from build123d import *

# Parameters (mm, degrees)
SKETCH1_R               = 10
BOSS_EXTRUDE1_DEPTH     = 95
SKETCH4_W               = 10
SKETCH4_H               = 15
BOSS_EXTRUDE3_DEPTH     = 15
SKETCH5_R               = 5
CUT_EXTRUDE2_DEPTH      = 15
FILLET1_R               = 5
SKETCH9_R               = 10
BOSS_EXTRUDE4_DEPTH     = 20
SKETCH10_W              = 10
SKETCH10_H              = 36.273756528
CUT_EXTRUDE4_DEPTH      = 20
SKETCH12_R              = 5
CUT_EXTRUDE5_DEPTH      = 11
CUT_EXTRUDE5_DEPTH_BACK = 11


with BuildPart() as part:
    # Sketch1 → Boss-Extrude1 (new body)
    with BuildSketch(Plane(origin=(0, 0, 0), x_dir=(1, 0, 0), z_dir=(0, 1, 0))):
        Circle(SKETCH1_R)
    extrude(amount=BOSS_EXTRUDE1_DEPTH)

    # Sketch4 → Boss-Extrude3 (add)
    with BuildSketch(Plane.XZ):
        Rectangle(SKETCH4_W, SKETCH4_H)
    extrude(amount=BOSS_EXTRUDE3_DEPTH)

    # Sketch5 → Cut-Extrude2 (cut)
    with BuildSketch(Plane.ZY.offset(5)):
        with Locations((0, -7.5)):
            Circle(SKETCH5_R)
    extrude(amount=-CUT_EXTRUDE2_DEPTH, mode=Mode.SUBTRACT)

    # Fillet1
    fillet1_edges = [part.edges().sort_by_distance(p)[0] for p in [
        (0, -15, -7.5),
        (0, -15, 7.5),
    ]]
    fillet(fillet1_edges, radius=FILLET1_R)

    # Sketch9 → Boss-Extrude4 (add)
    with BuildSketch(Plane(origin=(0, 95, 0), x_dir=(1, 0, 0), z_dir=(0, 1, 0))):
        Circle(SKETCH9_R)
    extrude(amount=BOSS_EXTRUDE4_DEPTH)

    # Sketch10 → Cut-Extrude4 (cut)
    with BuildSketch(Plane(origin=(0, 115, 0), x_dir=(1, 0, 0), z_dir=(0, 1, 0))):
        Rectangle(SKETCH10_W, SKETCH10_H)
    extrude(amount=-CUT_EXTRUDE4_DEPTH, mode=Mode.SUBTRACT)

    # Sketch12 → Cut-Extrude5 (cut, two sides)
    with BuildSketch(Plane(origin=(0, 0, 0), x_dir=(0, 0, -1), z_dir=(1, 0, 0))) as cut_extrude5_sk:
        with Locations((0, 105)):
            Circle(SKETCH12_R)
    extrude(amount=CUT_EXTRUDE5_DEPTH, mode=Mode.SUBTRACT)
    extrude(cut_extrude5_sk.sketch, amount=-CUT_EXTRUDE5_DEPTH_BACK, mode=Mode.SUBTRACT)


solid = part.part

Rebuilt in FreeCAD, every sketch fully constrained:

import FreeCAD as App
import Part
import Sketcher

V = App.Vector
Q = App.Units.Quantity


def edges_at(feature, points):
    """Names of the edges that pass closest to the given points."""
    edges = feature.Shape.Edges
    near = lambda p: min(range(len(edges)), key=lambda i: edges[i].distToShape(Part.Vertex(*p))[0])
    return sorted({f"Edge{near(p) + 1}" for p in points})


def add_polygon(sketch, points):
    """Adds a closed chain of lines whose ends are joined by coincident constraints."""
    first, n = sketch.GeometryCount, len(points)
    for a, b in zip(points, points[1:] + points[:1]):
        sketch.addGeometry(Part.LineSegment(App.Vector(*a, 0), App.Vector(*b, 0)), False)
    for i in range(n):
        sketch.addConstraint(Sketcher.Constraint("Coincident", first + i, 2, first + (i + 1) % n, 1))

doc = App.newDocument("Part")
body = doc.addObject("PartDesign::Body", "Body")

# Sketch on XZ plane
sketch1 = doc.addObject("Sketcher::SketchObject", "Sketch")
body.addObject(sketch1)
sketch1.AttachmentSupport = (doc.XZ_Plane, [""])
sketch1.MapMode = "FlatFace"
sketch1.addGeometry(Part.Circle(V(0, 0, 0), V(0, 0, 1), 10), False)
sketch1.addConstraint(Sketcher.Constraint("Coincident", 0, 3, -1, 1))
sketch1.addConstraint(Sketcher.Constraint("Diameter", 0, Q("20 mm")))
pad1 = doc.addObject("PartDesign::Pad", "Pad")
body.addObject(pad1)
pad1.Profile = sketch1
pad1.Length = 95
pad1.Reversed = True

# Sketch on XZ plane
sketch2 = doc.addObject("Sketcher::SketchObject", "Sketch001")
body.addObject(sketch2)
sketch2.AttachmentSupport = (doc.XZ_Plane, [""])
sketch2.MapMode = "FlatFace"
add_polygon(sketch2, [(-5, 8), (-5, -8), (5, -8), (5, 8)])  # lines 0-3
sketch2.addConstraint(Sketcher.Constraint("Vertical", 0))
sketch2.addConstraint(Sketcher.Constraint("Horizontal", 1))
sketch2.addConstraint(Sketcher.Constraint("Vertical", 2))
sketch2.addConstraint(Sketcher.Constraint("Horizontal", 3))
sketch2.addConstraint(Sketcher.Constraint("Symmetric", 0, 2, 2, 2, -1, 1))
sketch2.addConstraint(Sketcher.Constraint("DistanceX", 1, 1, 1, 2, Q("10 mm")))
sketch2.addConstraint(Sketcher.Constraint("DistanceY", 0, 2, 0, 1, Q("15 mm")))
pad2 = doc.addObject("PartDesign::Pad", "Pad001")
body.addObject(pad2)
pad2.Profile = sketch2
pad2.Length = 15

# Sketch on YZ plane
sketch3 = doc.addObject("Sketcher::SketchObject", "Sketch002")
body.addObject(sketch3)
sketch3.AttachmentSupport = (doc.YZ_Plane, [""])
sketch3.MapMode = "FlatFace"
sketch3.AttachmentOffset = App.Placement(V(0, 0, -5), App.Rotation())
sketch3.addGeometry(Part.Circle(V(-8, 0, 0), V(0, 0, 1), 5), False)
sketch3.addConstraint(Sketcher.Constraint("PointOnObject", 0, 3, -1))
sketch3.addConstraint(Sketcher.Constraint("Diameter", 0, Q("10 mm")))
sketch3.addConstraint(Sketcher.Constraint("DistanceX", 0, 3, -1, 1, Q("7.5 mm")))
pocket1 = doc.addObject("PartDesign::Pocket", "Pocket")
body.addObject(pocket1)
pocket1.Profile = sketch3
pocket1.Length = 15
pocket1.Reversed = True
doc.recompute()

fillet = doc.addObject("PartDesign::Fillet", "Fillet")
body.addObject(fillet)
fillet.Base = (pocket1, edges_at(pocket1, [(0, -15, -7.5), (0, -15, 7.5)]))
fillet.Radius = 5

# Sketch on XZ plane
sketch4 = doc.addObject("Sketcher::SketchObject", "Sketch003")
body.addObject(sketch4)
sketch4.AttachmentSupport = (doc.XZ_Plane, [""])
sketch4.MapMode = "FlatFace"
sketch4.AttachmentOffset = App.Placement(V(0, 0, -95), App.Rotation())
sketch4.addGeometry(Part.Circle(V(0, 0, 0), V(0, 0, 1), 10), False)
sketch4.addConstraint(Sketcher.Constraint("Coincident", 0, 3, -1, 1))
sketch4.addConstraint(Sketcher.Constraint("Diameter", 0, Q("20 mm")))
pad3 = doc.addObject("PartDesign::Pad", "Pad002")
body.addObject(pad3)
pad3.Profile = sketch4
pad3.Length = 20
pad3.Reversed = True

# Sketch on XZ plane
sketch5 = doc.addObject("Sketcher::SketchObject", "Sketch004")
body.addObject(sketch5)
sketch5.AttachmentSupport = (doc.XZ_Plane, [""])
sketch5.MapMode = "FlatFace"
sketch5.AttachmentOffset = App.Placement(V(0, 0, -115), App.Rotation())
add_polygon(sketch5, [(-5, -18), (-5, 18), (5, 18), (5, -18)])  # lines 0-3
sketch5.addConstraint(Sketcher.Constraint("Vertical", 0))
sketch5.addConstraint(Sketcher.Constraint("Horizontal", 1))
sketch5.addConstraint(Sketcher.Constraint("Vertical", 2))
sketch5.addConstraint(Sketcher.Constraint("Horizontal", 3))
sketch5.addConstraint(Sketcher.Constraint("Symmetric", 0, 2, 2, 2, -1, 1))
sketch5.addConstraint(Sketcher.Constraint("DistanceX", 1, 1, 1, 2, Q("10 mm")))
sketch5.addConstraint(Sketcher.Constraint("DistanceY", 0, 1, 0, 2, Q("36.273757 mm")))
pocket2 = doc.addObject("PartDesign::Pocket", "Pocket001")
body.addObject(pocket2)
pocket2.Profile = sketch5
pocket2.Length = 20
pocket2.Reversed = True

# Sketch on YZ plane
sketch6 = doc.addObject("Sketcher::SketchObject", "Sketch005")
body.addObject(sketch6)
sketch6.AttachmentSupport = (doc.YZ_Plane, [""])
sketch6.MapMode = "FlatFace"
sketch6.addGeometry(Part.Circle(V(105, 0, 0), V(0, 0, 1), 5), False)
sketch6.addConstraint(Sketcher.Constraint("PointOnObject", 0, 3, -1))
sketch6.addConstraint(Sketcher.Constraint("Diameter", 0, Q("10 mm")))
sketch6.addConstraint(Sketcher.Constraint("DistanceX", -1, 1, 0, 3, Q("105 mm")))
pocket3 = doc.addObject("PartDesign::Pocket", "Pocket002")
body.addObject(pocket3)
pocket3.Profile = sketch6
pocket3.Type = "ThroughAll"
pocket3.Midplane = True

doc.recompute()
